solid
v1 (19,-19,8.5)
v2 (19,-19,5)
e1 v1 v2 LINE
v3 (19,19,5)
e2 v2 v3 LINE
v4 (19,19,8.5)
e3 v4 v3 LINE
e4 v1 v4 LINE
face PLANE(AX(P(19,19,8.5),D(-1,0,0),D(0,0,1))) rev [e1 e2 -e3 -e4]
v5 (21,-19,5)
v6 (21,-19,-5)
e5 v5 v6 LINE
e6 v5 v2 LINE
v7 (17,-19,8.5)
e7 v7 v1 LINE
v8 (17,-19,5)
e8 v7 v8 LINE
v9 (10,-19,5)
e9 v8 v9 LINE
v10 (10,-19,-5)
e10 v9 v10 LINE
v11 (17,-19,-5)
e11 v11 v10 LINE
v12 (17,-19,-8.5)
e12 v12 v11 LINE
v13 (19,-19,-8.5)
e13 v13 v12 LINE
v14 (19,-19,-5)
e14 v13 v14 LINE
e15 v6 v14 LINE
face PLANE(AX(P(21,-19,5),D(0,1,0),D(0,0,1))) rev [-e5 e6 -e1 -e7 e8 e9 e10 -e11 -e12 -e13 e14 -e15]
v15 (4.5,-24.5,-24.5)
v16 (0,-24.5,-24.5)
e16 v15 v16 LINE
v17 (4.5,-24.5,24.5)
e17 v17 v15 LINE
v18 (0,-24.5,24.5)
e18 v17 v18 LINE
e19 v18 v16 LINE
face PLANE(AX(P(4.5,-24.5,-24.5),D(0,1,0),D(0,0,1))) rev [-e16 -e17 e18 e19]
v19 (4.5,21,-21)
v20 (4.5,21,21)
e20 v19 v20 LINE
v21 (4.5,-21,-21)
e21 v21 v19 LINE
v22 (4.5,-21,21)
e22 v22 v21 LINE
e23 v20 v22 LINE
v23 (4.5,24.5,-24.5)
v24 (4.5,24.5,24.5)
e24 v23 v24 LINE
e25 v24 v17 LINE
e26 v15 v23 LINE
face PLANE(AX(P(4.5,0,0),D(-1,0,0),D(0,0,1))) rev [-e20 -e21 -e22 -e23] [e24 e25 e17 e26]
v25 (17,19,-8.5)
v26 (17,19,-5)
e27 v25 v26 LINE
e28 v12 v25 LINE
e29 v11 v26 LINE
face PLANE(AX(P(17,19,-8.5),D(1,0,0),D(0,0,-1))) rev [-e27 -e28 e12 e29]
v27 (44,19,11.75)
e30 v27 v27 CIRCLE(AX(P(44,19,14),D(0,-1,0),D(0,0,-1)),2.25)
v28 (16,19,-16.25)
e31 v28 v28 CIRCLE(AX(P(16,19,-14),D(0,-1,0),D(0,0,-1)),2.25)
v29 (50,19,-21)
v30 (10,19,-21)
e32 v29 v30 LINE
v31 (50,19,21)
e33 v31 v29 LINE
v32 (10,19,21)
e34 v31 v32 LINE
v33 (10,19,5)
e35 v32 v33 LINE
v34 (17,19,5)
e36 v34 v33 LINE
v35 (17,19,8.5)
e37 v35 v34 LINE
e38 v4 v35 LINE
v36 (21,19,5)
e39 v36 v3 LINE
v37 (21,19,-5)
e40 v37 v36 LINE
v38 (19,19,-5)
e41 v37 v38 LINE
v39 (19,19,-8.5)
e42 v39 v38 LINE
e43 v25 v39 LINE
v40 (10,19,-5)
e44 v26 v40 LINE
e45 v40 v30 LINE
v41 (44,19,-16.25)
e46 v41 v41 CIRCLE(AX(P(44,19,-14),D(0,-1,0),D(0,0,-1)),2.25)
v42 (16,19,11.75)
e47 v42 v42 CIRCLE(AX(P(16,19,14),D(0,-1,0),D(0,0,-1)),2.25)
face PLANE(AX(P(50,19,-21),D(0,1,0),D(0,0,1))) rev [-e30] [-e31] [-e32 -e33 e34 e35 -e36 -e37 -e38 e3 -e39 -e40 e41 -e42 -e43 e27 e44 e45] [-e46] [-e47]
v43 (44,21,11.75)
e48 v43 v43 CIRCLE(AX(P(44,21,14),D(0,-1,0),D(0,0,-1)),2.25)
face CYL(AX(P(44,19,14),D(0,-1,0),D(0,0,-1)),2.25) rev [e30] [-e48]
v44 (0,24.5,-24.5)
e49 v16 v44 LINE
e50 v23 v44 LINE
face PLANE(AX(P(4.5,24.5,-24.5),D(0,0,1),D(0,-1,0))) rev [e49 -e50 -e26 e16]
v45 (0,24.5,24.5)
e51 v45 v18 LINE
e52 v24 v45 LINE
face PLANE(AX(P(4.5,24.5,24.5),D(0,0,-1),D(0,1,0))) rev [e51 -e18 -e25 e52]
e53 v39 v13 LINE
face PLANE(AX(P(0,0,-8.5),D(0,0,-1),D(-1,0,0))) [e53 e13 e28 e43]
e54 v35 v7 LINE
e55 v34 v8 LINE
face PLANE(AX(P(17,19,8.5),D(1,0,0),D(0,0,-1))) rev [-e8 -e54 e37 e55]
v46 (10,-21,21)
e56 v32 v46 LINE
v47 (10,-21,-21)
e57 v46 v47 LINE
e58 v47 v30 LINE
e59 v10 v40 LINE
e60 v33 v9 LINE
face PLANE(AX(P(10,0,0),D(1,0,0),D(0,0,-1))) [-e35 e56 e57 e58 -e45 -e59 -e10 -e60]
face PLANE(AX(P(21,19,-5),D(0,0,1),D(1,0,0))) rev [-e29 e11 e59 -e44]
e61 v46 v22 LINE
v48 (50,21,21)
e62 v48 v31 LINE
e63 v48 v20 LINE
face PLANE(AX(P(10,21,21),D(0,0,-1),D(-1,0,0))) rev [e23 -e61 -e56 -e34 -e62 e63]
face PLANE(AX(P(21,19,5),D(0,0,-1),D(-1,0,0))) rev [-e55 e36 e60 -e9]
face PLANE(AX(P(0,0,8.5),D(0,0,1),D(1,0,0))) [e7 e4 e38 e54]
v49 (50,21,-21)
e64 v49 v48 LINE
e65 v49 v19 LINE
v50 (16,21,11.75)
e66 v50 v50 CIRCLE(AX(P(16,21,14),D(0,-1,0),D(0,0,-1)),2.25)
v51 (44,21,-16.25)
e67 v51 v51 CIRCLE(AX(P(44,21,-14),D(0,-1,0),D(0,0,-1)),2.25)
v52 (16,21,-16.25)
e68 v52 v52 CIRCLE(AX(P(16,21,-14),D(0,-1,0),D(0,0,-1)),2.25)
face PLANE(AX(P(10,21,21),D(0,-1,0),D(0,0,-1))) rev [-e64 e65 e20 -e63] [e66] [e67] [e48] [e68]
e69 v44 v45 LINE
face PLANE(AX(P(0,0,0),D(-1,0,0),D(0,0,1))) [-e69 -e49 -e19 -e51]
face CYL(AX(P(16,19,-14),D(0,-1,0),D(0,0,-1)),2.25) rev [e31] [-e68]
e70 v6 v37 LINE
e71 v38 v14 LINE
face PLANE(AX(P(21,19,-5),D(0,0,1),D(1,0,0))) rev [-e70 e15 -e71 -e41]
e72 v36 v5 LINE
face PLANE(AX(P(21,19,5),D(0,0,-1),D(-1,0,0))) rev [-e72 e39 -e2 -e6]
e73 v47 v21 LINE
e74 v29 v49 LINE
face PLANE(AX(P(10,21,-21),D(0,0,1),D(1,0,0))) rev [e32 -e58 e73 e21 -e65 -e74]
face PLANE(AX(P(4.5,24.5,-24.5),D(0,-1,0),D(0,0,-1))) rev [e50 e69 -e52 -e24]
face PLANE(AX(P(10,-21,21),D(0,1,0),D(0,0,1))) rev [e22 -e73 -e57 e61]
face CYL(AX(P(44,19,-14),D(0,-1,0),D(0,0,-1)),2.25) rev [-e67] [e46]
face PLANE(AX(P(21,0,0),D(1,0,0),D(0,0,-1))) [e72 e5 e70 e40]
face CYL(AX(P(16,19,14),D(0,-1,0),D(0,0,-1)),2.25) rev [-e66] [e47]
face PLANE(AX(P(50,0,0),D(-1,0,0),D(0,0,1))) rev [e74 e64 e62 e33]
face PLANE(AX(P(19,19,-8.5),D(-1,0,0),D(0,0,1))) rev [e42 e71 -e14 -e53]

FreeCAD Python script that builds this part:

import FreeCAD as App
import Part
import Sketcher

V = App.Vector

doc = App.newDocument("Part")
body = doc.addObject("PartDesign::Body", "Body")

sketch1 = body.newObject("Sketcher::SketchObject", "Sketch")
sketch1.AttachmentSupport = (doc.getObject("YZ_Plane"), [""])
sketch1.MapMode = "FlatFace"
sketch1.addGeometry([
    Part.LineSegment(V(24.5, 24.5, 0), V(-24.5, 24.5, 0)),
    Part.LineSegment(V(-24.5, 24.5, 0), V(-24.5, -24.5, 0)),
    Part.LineSegment(V(-24.5, -24.5, 0), V(24.5, -24.5, 0)),
    Part.LineSegment(V(24.5, -24.5, 0), V(24.5, 24.5, 0)),
], False)
sketch1.addConstraint([
    Sketcher.Constraint("Coincident", 0, 2, 1, 1),
    Sketcher.Constraint("Coincident", 1, 2, 2, 1),
    Sketcher.Constraint("Coincident", 2, 2, 3, 1),
    Sketcher.Constraint("Coincident", 3, 2, 0, 1),
    Sketcher.Constraint("Horizontal", 0),
    Sketcher.Constraint("Vertical", 1),
    Sketcher.Constraint("Horizontal", 2),
    Sketcher.Constraint("Vertical", 3),
    Sketcher.Constraint("Symmetric", 0, 2, 2, 2, -1, 1),
    Sketcher.Constraint("Equal", 2, 1),
    Sketcher.Constraint("DistanceX", 0, 2, 0, 1, 49.0),
])
pad1 = body.newObject("PartDesign::Pad", "Pad")
pad1.Profile = sketch1
pad1.Length = 4.5

sketch2 = body.newObject("Sketcher::SketchObject", "Sketch001")
sketch2.AttachmentSupport = (doc.getObject("YZ_Plane"), [""])
sketch2.MapMode = "FlatFace"
sketch2.AttachmentOffset = App.Placement(V(0, 0, 4.5), App.Rotation())
sketch2.addGeometry([
    Part.LineSegment(V(21, 21, 0), V(-21, 21, 0)),
    Part.LineSegment(V(-21, 21, 0), V(-21, -21, 0)),
    Part.LineSegment(V(-21, -21, 0), V(21, -21, 0)),
    Part.LineSegment(V(21, -21, 0), V(21, 21, 0)),
], False)
sketch2.addConstraint([
    Sketcher.Constraint("Coincident", 0, 2, 1, 1),
    Sketcher.Constraint("Coincident", 1, 2, 2, 1),
    Sketcher.Constraint("Coincident", 2, 2, 3, 1),
    Sketcher.Constraint("Coincident", 3, 2, 0, 1),
    Sketcher.Constraint("Horizontal", 0),
    Sketcher.Constraint("Vertical", 1),
    Sketcher.Constraint("Horizontal", 2),
    Sketcher.Constraint("Vertical", 3),
    Sketcher.Constraint("Symmetric", 0, 2, 2, 2, -1, 1),
    Sketcher.Constraint("Equal", 2, 1),
    Sketcher.Constraint("DistanceX", 0, 2, 0, 1, 42.0),
])
pad2 = body.newObject("PartDesign::Pad", "Pad001")
pad2.Profile = sketch2
pad2.Length = 5.5

sketch3 = body.newObject("Sketcher::SketchObject", "Sketch002")
sketch3.AttachmentSupport = (doc.getObject("YZ_Plane"), [""])
sketch3.MapMode = "FlatFace"
sketch3.AttachmentOffset = App.Placement(V(0, 0, 10), App.Rotation())
sketch3.addGeometry([
    Part.LineSegment(V(21, 21, 0), V(19, 21, 0)),
    Part.LineSegment(V(19, 21, 0), V(19, -21, 0)),
    Part.LineSegment(V(19, -21, 0), V(21, -21, 0)),
    Part.LineSegment(V(21, -21, 0), V(21, 21, 0)),
], False)
sketch3.addConstraint([
    Sketcher.Constraint("Coincident", 0, 2, 1, 1),
    Sketcher.Constraint("Coincident", 1, 2, 2, 1),
    Sketcher.Constraint("Coincident", 2, 2, 3, 1),
    Sketcher.Constraint("Coincident", 3, 2, 0, 1),
    Sketcher.Constraint("Horizontal", 0),
    Sketcher.Constraint("Vertical", 1),
    Sketcher.Constraint("Horizontal", 2),
    Sketcher.Constraint("Vertical", 3),
    Sketcher.Constraint("DistanceX", 0, 2, 0, 1, 2.0),
    Sketcher.Constraint("DistanceY", 1, 2, 1, 1, 42.0),
    Sketcher.Constraint("DistanceX", -1, 1, 0, 2, 19.0),
    Sketcher.Constraint("DistanceY", -1, 1, 0, 2, 21.0),
])
pad3 = body.newObject("PartDesign::Pad", "Pad002")
pad3.Profile = sketch3
pad3.Length = 40

sketch4 = body.newObject("Sketcher::SketchObject", "Sketch003")
sketch4.AttachmentSupport = (doc.getObject("YZ_Plane"), [""])
sketch4.MapMode = "FlatFace"
sketch4.AttachmentOffset = App.Placement(V(0, 0, 10), App.Rotation())
sketch4.addGeometry([
    Part.LineSegment(V(19, 5, 0), V(-19, 5, 0)),
    Part.LineSegment(V(-19, 5, 0), V(-19, -5, 0)),
    Part.LineSegment(V(-19, -5, 0), V(19, -5, 0)),
    Part.LineSegment(V(19, -5, 0), V(19, 5, 0)),
], False)
sketch4.addConstraint([
    Sketcher.Constraint("Coincident", 0, 2, 1, 1),
    Sketcher.Constraint("Coincident", 1, 2, 2, 1),
    Sketcher.Constraint("Coincident", 2, 2, 3, 1),
    Sketcher.Constraint("Coincident", 3, 2, 0, 1),
    Sketcher.Constraint("Horizontal", 0),
    Sketcher.Constraint("Vertical", 1),
    Sketcher.Constraint("Horizontal", 2),
    Sketcher.Constraint("Vertical", 3),
    Sketcher.Constraint("Symmetric", 0, 2, 2, 2, -1, 1),
    Sketcher.Constraint("DistanceX", 0, 2, 0, 1, 38.0),
    Sketcher.Constraint("DistanceY", 1, 2, 1, 1, 10.0),
])
pad4 = body.newObject("PartDesign::Pad", "Pad003")
pad4.Profile = sketch4
pad4.Length = 11

sketch5 = body.newObject("Sketcher::SketchObject", "Sketch004")
sketch5.AttachmentSupport = (doc.getObject("XY_Plane"), [""])
sketch5.MapMode = "FlatFace"
sketch5.AttachmentOffset = App.Placement(V(0, 0, 5), App.Rotation())
sketch5.addGeometry([
    Part.LineSegment(V(17, 19, 0), V(17, -19, 0)),
    Part.LineSegment(V(17, -19, 0), V(19, -19, 0)),
    Part.LineSegment(V(19, -19, 0), V(19, 19, 0)),
    Part.LineSegment(V(19, 19, 0), V(17, 19, 0)),
], False)
sketch5.addConstraint([
    Sketcher.Constraint("Coincident", 0, 2, 1, 1),
    Sketcher.Constraint("Coincident", 1, 2, 2, 1),
    Sketcher.Constraint("Coincident", 2, 2, 3, 1),
    Sketcher.Constraint("Coincident", 3, 2, 0, 1),
    Sketcher.Constraint("Vertical", 0),
    Sketcher.Constraint("Horizontal", 1),
    Sketcher.Constraint("Vertical", 2),
    Sketcher.Constraint("Horizontal", 3),
    Sketcher.Constraint("DistanceX", 1, 1, 1, 2, 2.0),
    Sketcher.Constraint("DistanceY", 0, 2, 0, 1, 38.0),
    Sketcher.Constraint("DistanceX", -1, 1, 0, 2, 17.0),
    Sketcher.Constraint("DistanceY", 0, 2, -1, 1, 19.0),
])
pad5 = body.newObject("PartDesign::Pad", "Pad004")
pad5.Profile = sketch5
pad5.Length = 3.5

sketch6 = body.newObject("Sketcher::SketchObject", "Sketch005")
sketch6.AttachmentSupport = (doc.getObject("XY_Plane"), [""])
sketch6.MapMode = "FlatFace"
sketch6.AttachmentOffset = App.Placement(V(0, 0, -5), App.Rotation())
sketch6.addGeometry([
    Part.LineSegment(V(19, 19, 0), V(19, -19, 0)),
    Part.LineSegment(V(19, -19, 0), V(17, -19, 0)),
    Part.LineSegment(V(17, -19, 0), V(17, 19, 0)),
    Part.LineSegment(V(17, 19, 0), V(19, 19, 0)),
], False)
sketch6.addConstraint([
    Sketcher.Constraint("Coincident", 0, 2, 1, 1),
    Sketcher.Constraint("Coincident", 1, 2, 2, 1),
    Sketcher.Constraint("Coincident", 2, 2, 3, 1),
    Sketcher.Constraint("Coincident", 3, 2, 0, 1),
    Sketcher.Constraint("Vertical", 0),
    Sketcher.Constraint("Horizontal", 1),
    Sketcher.Constraint("Vertical", 2),
    Sketcher.Constraint("Horizontal", 3),
    Sketcher.Constraint("DistanceX", 1, 2, 1, 1, 2.0),
    Sketcher.Constraint("DistanceY", 0, 2, 0, 1, 38.0),
    Sketcher.Constraint("DistanceX", -1, 1, 0, 2, 19.0),
    Sketcher.Constraint("DistanceY", 0, 2, -1, 1, 19.0),
])
pad6 = body.newObject("PartDesign::Pad", "Pad005")
pad6.Profile = sketch6
pad6.Length = 3.5
pad6.Reversed = True

sketch7 = body.newObject("Sketcher::SketchObject", "Sketch006")
sketch7.AttachmentSupport = (doc.getObject("XZ_Plane"), [""])
sketch7.MapMode = "FlatFace"
sketch7.AttachmentOffset = App.Placement(V(0, 0, -19), App.Rotation())
sketch7.addGeometry([
    Part.Circle(V(44, -14, 0), V(0, 0, 1), 2.25),
    Part.Circle(V(44, 14, 0), V(0, 0, 1), 2.25),
    Part.Circle(V(16, 14, 0), V(0, 0, 1), 2.25),
    Part.Circle(V(16, -14, 0), V(0, 0, 1), 2.25),
], False)
sketch7.addConstraint([
    Sketcher.Constraint("Equal", 0, 1),
    Sketcher.Constraint("Equal", 1, 2),
    Sketcher.Constraint("Equal", 2, 3),
    Sketcher.Constraint("Symmetric", 0, 3, 1, 3, -1),
    Sketcher.Constraint("Symmetric", 2, 3, 3, 3, -1),
    Sketcher.Constraint("Horizontal", 1, 3, 2, 3),
    Sketcher.Constraint("Diameter", 0, 4.5),
    Sketcher.Constraint("DistanceX", -1, 1, 0, 3, 44.0),
    Sketcher.Constraint("DistanceY", 0, 3, -1, 1, 14.0),
    Sketcher.Constraint("DistanceX", -1, 1, 2, 3, 16.0),
])
doc.recompute()
hole = body.newObject("PartDesign::Hole", "Hole")
hole.Profile = sketch7
hole.ThreadType = "None"
hole.Diameter = 4.5
hole.DepthType = "ThroughAll"

doc.recompute()
